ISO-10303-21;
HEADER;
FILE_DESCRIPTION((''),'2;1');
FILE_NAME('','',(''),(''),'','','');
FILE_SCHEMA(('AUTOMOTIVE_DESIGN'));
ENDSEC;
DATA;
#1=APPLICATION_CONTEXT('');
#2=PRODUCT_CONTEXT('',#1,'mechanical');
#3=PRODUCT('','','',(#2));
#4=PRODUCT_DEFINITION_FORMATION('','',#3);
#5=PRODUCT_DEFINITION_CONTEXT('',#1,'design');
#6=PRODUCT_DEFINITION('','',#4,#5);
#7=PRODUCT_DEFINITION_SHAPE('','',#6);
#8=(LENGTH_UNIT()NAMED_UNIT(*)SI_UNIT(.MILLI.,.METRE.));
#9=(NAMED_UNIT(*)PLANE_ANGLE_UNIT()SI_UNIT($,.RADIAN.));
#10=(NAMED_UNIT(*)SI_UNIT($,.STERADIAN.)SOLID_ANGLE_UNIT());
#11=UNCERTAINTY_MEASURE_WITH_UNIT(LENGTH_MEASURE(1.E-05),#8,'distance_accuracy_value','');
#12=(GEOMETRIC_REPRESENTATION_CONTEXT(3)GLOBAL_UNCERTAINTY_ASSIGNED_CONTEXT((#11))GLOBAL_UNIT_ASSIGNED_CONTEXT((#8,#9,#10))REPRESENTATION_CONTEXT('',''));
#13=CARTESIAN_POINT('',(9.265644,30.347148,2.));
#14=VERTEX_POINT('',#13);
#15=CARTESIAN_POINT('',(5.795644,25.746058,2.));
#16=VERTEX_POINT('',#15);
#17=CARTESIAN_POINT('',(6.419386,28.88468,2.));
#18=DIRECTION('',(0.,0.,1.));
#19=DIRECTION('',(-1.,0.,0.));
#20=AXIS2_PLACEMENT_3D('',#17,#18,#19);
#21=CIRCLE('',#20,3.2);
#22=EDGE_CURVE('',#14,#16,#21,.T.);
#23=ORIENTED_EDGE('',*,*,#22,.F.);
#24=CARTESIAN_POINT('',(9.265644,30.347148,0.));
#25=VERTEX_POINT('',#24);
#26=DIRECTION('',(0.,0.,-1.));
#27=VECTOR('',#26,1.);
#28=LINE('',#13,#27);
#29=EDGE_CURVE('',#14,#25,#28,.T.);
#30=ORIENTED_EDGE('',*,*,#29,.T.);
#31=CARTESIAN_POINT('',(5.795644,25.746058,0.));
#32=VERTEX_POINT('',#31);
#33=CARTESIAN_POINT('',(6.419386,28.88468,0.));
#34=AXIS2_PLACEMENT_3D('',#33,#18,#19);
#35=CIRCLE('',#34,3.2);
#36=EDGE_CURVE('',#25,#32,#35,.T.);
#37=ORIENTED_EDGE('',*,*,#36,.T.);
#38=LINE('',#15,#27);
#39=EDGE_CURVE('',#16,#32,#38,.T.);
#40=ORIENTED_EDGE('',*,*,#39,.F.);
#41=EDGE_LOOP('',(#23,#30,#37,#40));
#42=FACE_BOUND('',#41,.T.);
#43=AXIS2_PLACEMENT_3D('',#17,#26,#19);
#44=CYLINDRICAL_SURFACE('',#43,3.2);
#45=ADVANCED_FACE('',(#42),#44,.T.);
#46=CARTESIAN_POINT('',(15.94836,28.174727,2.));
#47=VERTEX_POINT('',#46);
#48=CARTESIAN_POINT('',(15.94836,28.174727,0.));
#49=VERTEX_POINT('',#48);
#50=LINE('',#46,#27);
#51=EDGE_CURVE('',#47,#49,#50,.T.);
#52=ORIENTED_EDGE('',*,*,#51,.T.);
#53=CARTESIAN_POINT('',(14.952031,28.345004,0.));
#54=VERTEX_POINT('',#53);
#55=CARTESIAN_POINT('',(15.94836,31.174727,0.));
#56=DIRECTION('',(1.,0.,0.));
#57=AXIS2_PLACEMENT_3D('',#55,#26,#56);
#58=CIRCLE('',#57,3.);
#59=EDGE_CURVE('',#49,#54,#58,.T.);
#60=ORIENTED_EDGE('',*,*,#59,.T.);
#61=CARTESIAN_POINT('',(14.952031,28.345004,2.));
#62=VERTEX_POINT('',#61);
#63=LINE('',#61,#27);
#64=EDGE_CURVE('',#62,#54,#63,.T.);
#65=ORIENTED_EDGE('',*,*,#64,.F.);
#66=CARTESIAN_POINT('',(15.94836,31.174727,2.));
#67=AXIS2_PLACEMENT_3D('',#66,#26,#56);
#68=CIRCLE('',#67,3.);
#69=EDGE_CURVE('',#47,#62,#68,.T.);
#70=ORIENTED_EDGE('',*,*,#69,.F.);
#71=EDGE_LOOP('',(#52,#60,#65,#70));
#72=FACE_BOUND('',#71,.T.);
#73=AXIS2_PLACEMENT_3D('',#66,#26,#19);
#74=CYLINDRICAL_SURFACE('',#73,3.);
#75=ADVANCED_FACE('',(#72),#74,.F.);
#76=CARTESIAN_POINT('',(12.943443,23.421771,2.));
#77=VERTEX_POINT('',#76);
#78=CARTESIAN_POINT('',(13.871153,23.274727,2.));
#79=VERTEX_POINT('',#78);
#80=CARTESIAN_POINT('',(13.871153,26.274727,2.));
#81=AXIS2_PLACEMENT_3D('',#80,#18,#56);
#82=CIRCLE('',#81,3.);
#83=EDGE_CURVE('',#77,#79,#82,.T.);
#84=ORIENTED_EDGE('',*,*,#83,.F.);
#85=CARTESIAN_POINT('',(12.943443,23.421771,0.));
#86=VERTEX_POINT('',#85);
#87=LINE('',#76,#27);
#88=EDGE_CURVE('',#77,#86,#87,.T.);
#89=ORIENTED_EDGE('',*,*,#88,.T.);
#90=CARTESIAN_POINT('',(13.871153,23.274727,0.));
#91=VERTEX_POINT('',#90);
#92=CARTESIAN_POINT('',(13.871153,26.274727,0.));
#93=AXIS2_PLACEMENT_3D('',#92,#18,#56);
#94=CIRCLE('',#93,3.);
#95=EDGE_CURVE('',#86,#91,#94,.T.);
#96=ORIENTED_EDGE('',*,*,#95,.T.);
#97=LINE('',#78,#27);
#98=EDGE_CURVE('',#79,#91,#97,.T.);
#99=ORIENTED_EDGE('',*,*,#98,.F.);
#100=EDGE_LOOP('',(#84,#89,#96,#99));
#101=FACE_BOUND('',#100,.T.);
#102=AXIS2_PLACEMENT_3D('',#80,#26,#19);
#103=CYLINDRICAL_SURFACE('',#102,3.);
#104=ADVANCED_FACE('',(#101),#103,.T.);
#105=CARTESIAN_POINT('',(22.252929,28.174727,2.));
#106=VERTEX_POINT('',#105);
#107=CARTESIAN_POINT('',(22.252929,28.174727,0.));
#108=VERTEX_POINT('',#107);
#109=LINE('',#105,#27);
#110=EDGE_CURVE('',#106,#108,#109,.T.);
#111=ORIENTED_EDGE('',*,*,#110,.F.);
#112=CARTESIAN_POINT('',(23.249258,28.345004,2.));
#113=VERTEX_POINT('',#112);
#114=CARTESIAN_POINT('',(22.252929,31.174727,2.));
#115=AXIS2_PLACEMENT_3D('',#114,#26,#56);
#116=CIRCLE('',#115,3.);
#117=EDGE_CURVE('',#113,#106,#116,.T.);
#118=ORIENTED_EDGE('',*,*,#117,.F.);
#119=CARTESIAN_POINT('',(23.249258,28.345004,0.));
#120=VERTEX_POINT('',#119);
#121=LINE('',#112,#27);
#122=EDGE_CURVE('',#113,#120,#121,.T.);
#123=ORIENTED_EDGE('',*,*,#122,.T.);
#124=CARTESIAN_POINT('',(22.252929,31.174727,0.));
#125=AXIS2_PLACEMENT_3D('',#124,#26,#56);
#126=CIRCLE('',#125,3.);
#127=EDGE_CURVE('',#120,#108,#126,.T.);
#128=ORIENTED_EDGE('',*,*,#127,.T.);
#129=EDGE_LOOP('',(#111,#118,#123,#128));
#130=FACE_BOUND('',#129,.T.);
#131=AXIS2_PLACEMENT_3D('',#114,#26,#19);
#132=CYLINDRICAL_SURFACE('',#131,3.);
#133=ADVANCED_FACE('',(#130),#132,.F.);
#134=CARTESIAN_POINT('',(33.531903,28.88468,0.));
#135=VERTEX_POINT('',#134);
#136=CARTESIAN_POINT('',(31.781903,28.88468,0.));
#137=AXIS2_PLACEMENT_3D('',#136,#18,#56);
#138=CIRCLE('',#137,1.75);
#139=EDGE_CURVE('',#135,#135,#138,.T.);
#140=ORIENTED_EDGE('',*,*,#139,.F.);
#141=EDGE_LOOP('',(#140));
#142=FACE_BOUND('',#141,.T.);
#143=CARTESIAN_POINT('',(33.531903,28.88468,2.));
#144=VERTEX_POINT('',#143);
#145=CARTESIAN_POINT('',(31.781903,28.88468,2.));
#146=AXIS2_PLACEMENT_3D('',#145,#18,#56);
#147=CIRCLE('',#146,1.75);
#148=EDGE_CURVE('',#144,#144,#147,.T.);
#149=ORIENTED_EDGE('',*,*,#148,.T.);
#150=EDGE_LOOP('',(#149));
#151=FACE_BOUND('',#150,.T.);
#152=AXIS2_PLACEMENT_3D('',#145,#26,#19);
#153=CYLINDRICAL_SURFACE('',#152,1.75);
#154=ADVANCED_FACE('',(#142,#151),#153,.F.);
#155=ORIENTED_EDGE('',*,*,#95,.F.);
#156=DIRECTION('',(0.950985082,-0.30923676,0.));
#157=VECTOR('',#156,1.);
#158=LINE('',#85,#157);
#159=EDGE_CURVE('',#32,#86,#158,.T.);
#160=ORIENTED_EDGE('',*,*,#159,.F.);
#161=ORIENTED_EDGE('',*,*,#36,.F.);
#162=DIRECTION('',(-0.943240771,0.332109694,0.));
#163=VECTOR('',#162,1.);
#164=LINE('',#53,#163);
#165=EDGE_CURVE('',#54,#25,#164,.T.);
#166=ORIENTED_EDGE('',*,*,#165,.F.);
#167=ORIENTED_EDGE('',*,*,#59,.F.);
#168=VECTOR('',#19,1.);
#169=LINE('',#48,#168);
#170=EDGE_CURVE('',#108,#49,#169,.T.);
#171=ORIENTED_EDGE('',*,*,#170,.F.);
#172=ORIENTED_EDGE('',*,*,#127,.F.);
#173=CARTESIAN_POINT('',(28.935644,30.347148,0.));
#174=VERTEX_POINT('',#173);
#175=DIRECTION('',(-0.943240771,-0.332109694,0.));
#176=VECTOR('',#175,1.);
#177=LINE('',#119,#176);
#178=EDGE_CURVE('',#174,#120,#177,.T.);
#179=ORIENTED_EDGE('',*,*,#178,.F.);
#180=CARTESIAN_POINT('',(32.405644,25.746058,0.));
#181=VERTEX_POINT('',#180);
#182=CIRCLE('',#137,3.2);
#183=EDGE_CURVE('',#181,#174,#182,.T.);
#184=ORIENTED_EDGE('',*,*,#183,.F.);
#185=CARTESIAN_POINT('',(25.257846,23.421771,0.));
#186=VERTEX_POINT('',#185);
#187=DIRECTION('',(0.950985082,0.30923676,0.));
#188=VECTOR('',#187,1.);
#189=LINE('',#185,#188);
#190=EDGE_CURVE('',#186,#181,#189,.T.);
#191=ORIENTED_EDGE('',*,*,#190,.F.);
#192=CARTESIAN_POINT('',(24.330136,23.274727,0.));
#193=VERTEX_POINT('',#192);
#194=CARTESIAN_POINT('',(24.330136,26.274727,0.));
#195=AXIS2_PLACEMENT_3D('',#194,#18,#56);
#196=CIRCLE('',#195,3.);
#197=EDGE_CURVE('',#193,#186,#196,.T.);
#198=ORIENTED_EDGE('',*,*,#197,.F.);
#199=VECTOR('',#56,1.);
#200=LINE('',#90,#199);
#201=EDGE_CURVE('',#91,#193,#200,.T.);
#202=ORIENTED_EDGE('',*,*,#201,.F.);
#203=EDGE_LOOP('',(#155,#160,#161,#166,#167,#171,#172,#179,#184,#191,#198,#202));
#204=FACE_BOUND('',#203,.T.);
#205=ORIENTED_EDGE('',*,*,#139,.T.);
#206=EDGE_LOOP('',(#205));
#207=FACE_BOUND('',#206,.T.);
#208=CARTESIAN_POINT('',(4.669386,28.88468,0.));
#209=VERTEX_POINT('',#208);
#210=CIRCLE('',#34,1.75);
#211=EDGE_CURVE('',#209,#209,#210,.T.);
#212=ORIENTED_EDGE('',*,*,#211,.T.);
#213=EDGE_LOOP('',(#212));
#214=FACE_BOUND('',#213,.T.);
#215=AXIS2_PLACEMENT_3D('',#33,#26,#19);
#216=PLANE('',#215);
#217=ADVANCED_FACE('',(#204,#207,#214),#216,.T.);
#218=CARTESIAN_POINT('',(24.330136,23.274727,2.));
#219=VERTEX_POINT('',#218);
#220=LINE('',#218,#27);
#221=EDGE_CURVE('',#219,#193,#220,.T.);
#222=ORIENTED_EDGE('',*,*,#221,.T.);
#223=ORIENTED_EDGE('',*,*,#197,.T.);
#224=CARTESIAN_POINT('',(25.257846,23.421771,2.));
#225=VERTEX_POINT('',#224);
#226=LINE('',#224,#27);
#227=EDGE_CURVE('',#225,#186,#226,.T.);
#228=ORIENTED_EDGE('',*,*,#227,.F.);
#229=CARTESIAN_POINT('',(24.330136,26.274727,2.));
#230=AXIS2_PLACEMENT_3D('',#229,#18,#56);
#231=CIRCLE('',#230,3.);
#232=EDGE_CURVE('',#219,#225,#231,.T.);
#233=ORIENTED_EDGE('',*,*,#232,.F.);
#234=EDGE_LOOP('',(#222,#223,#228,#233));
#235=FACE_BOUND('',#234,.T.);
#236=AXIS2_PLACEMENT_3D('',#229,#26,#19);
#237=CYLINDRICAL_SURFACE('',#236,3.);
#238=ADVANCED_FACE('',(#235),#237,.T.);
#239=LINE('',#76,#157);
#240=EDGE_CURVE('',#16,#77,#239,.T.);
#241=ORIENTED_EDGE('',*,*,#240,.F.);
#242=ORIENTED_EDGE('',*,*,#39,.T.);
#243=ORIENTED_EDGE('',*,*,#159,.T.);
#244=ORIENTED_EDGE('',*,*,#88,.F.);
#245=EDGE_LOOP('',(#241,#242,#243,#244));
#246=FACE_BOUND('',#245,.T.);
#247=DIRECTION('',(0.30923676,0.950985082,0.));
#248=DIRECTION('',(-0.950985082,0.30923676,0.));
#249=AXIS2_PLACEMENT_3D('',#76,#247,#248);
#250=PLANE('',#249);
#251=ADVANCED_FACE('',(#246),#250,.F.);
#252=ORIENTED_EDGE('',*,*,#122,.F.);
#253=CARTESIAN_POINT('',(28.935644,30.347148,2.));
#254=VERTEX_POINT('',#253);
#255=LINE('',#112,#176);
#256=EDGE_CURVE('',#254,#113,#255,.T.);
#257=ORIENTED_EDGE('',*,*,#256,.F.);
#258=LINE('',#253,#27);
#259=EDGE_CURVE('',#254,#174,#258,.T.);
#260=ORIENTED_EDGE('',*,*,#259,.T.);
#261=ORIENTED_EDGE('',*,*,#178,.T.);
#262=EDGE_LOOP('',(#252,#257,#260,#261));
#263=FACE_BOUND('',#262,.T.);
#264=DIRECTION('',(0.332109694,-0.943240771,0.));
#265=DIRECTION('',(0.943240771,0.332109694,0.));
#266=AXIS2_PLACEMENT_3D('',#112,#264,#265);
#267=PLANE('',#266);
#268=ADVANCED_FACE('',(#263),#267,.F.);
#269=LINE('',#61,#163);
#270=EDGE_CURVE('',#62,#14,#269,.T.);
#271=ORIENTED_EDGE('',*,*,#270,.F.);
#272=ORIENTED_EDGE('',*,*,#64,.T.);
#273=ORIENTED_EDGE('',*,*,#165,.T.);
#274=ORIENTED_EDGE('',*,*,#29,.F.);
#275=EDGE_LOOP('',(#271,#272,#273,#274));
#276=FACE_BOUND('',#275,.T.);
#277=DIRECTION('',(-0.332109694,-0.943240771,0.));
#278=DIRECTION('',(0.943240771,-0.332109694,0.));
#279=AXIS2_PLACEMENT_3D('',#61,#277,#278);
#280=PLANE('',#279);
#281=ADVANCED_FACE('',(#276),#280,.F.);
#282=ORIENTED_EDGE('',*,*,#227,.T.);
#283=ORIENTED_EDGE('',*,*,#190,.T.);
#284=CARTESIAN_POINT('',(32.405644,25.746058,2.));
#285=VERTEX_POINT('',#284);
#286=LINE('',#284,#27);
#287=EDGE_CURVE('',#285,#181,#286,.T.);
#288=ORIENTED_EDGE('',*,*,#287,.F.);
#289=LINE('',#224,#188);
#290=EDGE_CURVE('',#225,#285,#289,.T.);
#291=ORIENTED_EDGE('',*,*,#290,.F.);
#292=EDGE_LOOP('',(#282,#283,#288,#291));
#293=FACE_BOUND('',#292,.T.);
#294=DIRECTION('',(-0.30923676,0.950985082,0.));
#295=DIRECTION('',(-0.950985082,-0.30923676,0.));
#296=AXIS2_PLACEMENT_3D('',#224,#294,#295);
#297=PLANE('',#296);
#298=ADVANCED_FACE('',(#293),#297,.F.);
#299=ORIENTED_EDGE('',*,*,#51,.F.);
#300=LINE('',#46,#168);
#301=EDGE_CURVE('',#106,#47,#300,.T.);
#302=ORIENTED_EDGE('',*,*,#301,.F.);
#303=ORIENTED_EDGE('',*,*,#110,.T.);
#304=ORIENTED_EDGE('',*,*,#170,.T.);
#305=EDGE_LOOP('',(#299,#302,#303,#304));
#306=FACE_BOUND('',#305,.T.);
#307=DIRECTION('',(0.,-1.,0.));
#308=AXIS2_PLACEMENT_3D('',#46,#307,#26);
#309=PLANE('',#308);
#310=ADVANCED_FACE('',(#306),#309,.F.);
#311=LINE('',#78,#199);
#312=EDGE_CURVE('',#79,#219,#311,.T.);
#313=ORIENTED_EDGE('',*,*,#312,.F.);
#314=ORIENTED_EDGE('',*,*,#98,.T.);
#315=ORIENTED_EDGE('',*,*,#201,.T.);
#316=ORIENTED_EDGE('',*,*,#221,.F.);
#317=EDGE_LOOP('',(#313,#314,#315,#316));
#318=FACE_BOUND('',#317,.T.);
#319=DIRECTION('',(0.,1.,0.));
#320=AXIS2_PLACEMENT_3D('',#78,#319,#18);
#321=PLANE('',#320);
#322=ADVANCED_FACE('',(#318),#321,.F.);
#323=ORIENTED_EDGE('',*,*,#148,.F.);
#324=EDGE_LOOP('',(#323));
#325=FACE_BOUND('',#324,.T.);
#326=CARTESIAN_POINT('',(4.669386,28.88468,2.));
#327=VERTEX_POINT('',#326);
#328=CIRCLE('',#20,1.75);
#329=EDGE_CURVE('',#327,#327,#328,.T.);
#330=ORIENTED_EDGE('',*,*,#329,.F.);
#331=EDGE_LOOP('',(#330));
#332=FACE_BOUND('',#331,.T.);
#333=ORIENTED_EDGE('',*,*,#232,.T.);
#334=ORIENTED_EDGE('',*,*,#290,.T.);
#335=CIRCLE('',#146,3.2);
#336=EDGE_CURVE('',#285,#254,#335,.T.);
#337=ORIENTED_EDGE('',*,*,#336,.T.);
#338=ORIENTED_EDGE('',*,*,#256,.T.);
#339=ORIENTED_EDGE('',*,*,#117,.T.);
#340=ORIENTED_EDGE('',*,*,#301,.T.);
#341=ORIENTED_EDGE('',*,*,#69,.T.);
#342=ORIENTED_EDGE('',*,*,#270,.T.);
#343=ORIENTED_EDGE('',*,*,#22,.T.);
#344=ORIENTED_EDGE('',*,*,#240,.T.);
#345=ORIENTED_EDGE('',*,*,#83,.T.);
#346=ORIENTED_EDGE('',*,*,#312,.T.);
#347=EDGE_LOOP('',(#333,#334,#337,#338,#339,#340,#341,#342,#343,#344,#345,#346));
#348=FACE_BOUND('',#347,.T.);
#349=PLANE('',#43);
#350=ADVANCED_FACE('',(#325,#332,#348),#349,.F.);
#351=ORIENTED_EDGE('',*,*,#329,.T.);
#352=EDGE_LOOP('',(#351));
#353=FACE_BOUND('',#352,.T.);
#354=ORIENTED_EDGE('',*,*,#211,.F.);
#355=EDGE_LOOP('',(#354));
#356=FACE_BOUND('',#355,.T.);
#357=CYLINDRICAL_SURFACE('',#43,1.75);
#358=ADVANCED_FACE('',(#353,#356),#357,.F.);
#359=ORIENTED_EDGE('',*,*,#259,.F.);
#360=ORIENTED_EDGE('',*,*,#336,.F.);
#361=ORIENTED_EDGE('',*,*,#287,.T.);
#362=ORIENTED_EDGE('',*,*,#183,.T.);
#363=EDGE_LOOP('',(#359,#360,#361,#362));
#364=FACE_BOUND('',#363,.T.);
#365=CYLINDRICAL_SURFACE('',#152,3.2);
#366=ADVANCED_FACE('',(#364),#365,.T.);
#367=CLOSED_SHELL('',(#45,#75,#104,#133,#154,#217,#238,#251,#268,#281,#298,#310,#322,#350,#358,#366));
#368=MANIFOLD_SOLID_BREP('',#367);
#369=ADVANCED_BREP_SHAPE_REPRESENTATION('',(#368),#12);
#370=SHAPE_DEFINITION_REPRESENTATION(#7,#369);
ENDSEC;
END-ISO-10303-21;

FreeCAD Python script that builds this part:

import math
import FreeCAD as App
import Part
import Sketcher

doc = App.newDocument("Part")
body = doc.addObject("PartDesign::Body", "Body")

sketch1 = doc.addObject("Sketcher::SketchObject", "Sketch")
body.addObject(sketch1)
sketch1.AttachmentSupport = (doc.XY_Plane, [""])
sketch1.MapMode = "FlatFace"
sketch1.addGeometry([
    Part.LineSegment(App.Vector(13.9, 23.3, 0), App.Vector(24.3, 23.3, 0)),
    Part.ArcOfCircle(Part.Circle(App.Vector(24.3, 26.3, 0), App.Vector(0, 0, 1), 3), math.radians(-90), math.radians(-71.99)),
    Part.LineSegment(App.Vector(25.3, 23.4, 0), App.Vector(32.4, 25.7, 0)),
    Part.ArcOfCircle(Part.Circle(App.Vector(31.8, 28.9, 0), App.Vector(0, 0, 1), 3.2), math.radians(-79), math.radians(153)),
    Part.LineSegment(App.Vector(28.9, 30.3, 0), App.Vector(23.2, 28.3, 0)),
    Part.ArcOfCircle(Part.Circle(App.Vector(22.3, 31.2, 0), App.Vector(0, 0, 1), 3), math.radians(-90), math.radians(-70.6)),
    Part.LineSegment(App.Vector(22.3, 28.2, 0), App.Vector(15.9, 28.2, 0)),
    Part.ArcOfCircle(Part.Circle(App.Vector(15.9, 31.2, 0), App.Vector(0, 0, 1), 3), math.radians(-109.4), math.radians(-90)),
    Part.LineSegment(App.Vector(15, 28.3, 0), App.Vector(9.3, 30.3, 0)),
    Part.ArcOfCircle(Part.Circle(App.Vector(6.4, 28.9, 0), App.Vector(0, 0, 1), 3.2), math.radians(27), math.radians(259)),
    Part.LineSegment(App.Vector(5.8, 25.7, 0), App.Vector(12.9, 23.4, 0)),
    Part.ArcOfCircle(Part.Circle(App.Vector(13.9, 26.3, 0), App.Vector(0, 0, 1), 3), math.radians(-108.01), math.radians(-90)),
    Part.Circle(App.Vector(6.4, 28.9, 0), App.Vector(0, 0, 1), 1.8),
    Part.Circle(App.Vector(31.8, 28.9, 0), App.Vector(0, 0, 1), 1.8),
], False)
sketch1.addConstraint([
    Sketcher.Constraint("Tangent", 0, 2, 1, 1),
    Sketcher.Constraint("Tangent", 1, 2, 2, 1),
    Sketcher.Constraint("Coincident", 2, 2, 3, 1),
    Sketcher.Constraint("Coincident", 3, 2, 4, 1),
    Sketcher.Constraint("Tangent", 4, 2, 5, 2),
    Sketcher.Constraint("Tangent", 5, 1, 6, 1),
    Sketcher.Constraint("Tangent", 6, 2, 7, 2),
    Sketcher.Constraint("Tangent", 7, 1, 8, 1),
    Sketcher.Constraint("Coincident", 8, 2, 9, 1),
    Sketcher.Constraint("Coincident", 9, 2, 10, 1),
    Sketcher.Constraint("Tangent", 10, 2, 11, 1),
    Sketcher.Constraint("Tangent", 11, 2, 0, 1),
    Sketcher.Constraint("Horizontal", 0),
    Sketcher.Constraint("Horizontal", 6),
    Sketcher.Constraint("Coincident", 12, 3, 9, 3),
    Sketcher.Constraint("Coincident", 13, 3, 3, 3),
    Sketcher.Constraint("Equal", 1, 5),
    Sketcher.Constraint("Equal", 5, 7),
    Sketcher.Constraint("Equal", 3, 9),
    Sketcher.Constraint("Equal", 7, 11),
    Sketcher.Constraint("Equal", 12, 13),
    Sketcher.Constraint("Horizontal", 3, 3, 9, 3),
    Sketcher.Constraint("Horizontal", 4, 2, 7, 1),
    Sketcher.Constraint("Horizontal", 3, 2, 8, 2),
    Sketcher.Constraint("Horizontal", 2, 2, 9, 2),
    Sketcher.Constraint("Horizontal", 1, 2, 10, 2),
    Sketcher.Constraint("Radius", 1, 3.0),
    Sketcher.Constraint("Diameter", 12, 3.5),
    Sketcher.Constraint("Radius", 3, 3.2),
    Sketcher.Constraint("DistanceY", 1, 3, 5, 3, 4.9),
    Sketcher.Constraint("DistanceX", 3, 2, 2, 2, 3.47),
    Sketcher.Constraint("DistanceX", 6, 2, 6, 1, 6.30457),
    Sketcher.Constraint("DistanceX", 1, 2, 2, 2, 7.147798),
    Sketcher.Constraint("DistanceX", 6, 2, 4, 2, 7.300899),
    Sketcher.Constraint("DistanceX", 0, 1, 0, 2, 10.458983),
    Sketcher.Constraint("DistanceY", -1, 1, 3, 3, 28.88468),
    Sketcher.Constraint("DistanceX", -1, 1, 5, 3, 22.252929),
    Sketcher.Constraint("DistanceY", -1, 1, 1, 2, 23.421771),
])
pad1 = doc.addObject("PartDesign::Pad", "Pad")
body.addObject(pad1)
pad1.Profile = sketch1
pad1.Length = 2

doc.recompute()
